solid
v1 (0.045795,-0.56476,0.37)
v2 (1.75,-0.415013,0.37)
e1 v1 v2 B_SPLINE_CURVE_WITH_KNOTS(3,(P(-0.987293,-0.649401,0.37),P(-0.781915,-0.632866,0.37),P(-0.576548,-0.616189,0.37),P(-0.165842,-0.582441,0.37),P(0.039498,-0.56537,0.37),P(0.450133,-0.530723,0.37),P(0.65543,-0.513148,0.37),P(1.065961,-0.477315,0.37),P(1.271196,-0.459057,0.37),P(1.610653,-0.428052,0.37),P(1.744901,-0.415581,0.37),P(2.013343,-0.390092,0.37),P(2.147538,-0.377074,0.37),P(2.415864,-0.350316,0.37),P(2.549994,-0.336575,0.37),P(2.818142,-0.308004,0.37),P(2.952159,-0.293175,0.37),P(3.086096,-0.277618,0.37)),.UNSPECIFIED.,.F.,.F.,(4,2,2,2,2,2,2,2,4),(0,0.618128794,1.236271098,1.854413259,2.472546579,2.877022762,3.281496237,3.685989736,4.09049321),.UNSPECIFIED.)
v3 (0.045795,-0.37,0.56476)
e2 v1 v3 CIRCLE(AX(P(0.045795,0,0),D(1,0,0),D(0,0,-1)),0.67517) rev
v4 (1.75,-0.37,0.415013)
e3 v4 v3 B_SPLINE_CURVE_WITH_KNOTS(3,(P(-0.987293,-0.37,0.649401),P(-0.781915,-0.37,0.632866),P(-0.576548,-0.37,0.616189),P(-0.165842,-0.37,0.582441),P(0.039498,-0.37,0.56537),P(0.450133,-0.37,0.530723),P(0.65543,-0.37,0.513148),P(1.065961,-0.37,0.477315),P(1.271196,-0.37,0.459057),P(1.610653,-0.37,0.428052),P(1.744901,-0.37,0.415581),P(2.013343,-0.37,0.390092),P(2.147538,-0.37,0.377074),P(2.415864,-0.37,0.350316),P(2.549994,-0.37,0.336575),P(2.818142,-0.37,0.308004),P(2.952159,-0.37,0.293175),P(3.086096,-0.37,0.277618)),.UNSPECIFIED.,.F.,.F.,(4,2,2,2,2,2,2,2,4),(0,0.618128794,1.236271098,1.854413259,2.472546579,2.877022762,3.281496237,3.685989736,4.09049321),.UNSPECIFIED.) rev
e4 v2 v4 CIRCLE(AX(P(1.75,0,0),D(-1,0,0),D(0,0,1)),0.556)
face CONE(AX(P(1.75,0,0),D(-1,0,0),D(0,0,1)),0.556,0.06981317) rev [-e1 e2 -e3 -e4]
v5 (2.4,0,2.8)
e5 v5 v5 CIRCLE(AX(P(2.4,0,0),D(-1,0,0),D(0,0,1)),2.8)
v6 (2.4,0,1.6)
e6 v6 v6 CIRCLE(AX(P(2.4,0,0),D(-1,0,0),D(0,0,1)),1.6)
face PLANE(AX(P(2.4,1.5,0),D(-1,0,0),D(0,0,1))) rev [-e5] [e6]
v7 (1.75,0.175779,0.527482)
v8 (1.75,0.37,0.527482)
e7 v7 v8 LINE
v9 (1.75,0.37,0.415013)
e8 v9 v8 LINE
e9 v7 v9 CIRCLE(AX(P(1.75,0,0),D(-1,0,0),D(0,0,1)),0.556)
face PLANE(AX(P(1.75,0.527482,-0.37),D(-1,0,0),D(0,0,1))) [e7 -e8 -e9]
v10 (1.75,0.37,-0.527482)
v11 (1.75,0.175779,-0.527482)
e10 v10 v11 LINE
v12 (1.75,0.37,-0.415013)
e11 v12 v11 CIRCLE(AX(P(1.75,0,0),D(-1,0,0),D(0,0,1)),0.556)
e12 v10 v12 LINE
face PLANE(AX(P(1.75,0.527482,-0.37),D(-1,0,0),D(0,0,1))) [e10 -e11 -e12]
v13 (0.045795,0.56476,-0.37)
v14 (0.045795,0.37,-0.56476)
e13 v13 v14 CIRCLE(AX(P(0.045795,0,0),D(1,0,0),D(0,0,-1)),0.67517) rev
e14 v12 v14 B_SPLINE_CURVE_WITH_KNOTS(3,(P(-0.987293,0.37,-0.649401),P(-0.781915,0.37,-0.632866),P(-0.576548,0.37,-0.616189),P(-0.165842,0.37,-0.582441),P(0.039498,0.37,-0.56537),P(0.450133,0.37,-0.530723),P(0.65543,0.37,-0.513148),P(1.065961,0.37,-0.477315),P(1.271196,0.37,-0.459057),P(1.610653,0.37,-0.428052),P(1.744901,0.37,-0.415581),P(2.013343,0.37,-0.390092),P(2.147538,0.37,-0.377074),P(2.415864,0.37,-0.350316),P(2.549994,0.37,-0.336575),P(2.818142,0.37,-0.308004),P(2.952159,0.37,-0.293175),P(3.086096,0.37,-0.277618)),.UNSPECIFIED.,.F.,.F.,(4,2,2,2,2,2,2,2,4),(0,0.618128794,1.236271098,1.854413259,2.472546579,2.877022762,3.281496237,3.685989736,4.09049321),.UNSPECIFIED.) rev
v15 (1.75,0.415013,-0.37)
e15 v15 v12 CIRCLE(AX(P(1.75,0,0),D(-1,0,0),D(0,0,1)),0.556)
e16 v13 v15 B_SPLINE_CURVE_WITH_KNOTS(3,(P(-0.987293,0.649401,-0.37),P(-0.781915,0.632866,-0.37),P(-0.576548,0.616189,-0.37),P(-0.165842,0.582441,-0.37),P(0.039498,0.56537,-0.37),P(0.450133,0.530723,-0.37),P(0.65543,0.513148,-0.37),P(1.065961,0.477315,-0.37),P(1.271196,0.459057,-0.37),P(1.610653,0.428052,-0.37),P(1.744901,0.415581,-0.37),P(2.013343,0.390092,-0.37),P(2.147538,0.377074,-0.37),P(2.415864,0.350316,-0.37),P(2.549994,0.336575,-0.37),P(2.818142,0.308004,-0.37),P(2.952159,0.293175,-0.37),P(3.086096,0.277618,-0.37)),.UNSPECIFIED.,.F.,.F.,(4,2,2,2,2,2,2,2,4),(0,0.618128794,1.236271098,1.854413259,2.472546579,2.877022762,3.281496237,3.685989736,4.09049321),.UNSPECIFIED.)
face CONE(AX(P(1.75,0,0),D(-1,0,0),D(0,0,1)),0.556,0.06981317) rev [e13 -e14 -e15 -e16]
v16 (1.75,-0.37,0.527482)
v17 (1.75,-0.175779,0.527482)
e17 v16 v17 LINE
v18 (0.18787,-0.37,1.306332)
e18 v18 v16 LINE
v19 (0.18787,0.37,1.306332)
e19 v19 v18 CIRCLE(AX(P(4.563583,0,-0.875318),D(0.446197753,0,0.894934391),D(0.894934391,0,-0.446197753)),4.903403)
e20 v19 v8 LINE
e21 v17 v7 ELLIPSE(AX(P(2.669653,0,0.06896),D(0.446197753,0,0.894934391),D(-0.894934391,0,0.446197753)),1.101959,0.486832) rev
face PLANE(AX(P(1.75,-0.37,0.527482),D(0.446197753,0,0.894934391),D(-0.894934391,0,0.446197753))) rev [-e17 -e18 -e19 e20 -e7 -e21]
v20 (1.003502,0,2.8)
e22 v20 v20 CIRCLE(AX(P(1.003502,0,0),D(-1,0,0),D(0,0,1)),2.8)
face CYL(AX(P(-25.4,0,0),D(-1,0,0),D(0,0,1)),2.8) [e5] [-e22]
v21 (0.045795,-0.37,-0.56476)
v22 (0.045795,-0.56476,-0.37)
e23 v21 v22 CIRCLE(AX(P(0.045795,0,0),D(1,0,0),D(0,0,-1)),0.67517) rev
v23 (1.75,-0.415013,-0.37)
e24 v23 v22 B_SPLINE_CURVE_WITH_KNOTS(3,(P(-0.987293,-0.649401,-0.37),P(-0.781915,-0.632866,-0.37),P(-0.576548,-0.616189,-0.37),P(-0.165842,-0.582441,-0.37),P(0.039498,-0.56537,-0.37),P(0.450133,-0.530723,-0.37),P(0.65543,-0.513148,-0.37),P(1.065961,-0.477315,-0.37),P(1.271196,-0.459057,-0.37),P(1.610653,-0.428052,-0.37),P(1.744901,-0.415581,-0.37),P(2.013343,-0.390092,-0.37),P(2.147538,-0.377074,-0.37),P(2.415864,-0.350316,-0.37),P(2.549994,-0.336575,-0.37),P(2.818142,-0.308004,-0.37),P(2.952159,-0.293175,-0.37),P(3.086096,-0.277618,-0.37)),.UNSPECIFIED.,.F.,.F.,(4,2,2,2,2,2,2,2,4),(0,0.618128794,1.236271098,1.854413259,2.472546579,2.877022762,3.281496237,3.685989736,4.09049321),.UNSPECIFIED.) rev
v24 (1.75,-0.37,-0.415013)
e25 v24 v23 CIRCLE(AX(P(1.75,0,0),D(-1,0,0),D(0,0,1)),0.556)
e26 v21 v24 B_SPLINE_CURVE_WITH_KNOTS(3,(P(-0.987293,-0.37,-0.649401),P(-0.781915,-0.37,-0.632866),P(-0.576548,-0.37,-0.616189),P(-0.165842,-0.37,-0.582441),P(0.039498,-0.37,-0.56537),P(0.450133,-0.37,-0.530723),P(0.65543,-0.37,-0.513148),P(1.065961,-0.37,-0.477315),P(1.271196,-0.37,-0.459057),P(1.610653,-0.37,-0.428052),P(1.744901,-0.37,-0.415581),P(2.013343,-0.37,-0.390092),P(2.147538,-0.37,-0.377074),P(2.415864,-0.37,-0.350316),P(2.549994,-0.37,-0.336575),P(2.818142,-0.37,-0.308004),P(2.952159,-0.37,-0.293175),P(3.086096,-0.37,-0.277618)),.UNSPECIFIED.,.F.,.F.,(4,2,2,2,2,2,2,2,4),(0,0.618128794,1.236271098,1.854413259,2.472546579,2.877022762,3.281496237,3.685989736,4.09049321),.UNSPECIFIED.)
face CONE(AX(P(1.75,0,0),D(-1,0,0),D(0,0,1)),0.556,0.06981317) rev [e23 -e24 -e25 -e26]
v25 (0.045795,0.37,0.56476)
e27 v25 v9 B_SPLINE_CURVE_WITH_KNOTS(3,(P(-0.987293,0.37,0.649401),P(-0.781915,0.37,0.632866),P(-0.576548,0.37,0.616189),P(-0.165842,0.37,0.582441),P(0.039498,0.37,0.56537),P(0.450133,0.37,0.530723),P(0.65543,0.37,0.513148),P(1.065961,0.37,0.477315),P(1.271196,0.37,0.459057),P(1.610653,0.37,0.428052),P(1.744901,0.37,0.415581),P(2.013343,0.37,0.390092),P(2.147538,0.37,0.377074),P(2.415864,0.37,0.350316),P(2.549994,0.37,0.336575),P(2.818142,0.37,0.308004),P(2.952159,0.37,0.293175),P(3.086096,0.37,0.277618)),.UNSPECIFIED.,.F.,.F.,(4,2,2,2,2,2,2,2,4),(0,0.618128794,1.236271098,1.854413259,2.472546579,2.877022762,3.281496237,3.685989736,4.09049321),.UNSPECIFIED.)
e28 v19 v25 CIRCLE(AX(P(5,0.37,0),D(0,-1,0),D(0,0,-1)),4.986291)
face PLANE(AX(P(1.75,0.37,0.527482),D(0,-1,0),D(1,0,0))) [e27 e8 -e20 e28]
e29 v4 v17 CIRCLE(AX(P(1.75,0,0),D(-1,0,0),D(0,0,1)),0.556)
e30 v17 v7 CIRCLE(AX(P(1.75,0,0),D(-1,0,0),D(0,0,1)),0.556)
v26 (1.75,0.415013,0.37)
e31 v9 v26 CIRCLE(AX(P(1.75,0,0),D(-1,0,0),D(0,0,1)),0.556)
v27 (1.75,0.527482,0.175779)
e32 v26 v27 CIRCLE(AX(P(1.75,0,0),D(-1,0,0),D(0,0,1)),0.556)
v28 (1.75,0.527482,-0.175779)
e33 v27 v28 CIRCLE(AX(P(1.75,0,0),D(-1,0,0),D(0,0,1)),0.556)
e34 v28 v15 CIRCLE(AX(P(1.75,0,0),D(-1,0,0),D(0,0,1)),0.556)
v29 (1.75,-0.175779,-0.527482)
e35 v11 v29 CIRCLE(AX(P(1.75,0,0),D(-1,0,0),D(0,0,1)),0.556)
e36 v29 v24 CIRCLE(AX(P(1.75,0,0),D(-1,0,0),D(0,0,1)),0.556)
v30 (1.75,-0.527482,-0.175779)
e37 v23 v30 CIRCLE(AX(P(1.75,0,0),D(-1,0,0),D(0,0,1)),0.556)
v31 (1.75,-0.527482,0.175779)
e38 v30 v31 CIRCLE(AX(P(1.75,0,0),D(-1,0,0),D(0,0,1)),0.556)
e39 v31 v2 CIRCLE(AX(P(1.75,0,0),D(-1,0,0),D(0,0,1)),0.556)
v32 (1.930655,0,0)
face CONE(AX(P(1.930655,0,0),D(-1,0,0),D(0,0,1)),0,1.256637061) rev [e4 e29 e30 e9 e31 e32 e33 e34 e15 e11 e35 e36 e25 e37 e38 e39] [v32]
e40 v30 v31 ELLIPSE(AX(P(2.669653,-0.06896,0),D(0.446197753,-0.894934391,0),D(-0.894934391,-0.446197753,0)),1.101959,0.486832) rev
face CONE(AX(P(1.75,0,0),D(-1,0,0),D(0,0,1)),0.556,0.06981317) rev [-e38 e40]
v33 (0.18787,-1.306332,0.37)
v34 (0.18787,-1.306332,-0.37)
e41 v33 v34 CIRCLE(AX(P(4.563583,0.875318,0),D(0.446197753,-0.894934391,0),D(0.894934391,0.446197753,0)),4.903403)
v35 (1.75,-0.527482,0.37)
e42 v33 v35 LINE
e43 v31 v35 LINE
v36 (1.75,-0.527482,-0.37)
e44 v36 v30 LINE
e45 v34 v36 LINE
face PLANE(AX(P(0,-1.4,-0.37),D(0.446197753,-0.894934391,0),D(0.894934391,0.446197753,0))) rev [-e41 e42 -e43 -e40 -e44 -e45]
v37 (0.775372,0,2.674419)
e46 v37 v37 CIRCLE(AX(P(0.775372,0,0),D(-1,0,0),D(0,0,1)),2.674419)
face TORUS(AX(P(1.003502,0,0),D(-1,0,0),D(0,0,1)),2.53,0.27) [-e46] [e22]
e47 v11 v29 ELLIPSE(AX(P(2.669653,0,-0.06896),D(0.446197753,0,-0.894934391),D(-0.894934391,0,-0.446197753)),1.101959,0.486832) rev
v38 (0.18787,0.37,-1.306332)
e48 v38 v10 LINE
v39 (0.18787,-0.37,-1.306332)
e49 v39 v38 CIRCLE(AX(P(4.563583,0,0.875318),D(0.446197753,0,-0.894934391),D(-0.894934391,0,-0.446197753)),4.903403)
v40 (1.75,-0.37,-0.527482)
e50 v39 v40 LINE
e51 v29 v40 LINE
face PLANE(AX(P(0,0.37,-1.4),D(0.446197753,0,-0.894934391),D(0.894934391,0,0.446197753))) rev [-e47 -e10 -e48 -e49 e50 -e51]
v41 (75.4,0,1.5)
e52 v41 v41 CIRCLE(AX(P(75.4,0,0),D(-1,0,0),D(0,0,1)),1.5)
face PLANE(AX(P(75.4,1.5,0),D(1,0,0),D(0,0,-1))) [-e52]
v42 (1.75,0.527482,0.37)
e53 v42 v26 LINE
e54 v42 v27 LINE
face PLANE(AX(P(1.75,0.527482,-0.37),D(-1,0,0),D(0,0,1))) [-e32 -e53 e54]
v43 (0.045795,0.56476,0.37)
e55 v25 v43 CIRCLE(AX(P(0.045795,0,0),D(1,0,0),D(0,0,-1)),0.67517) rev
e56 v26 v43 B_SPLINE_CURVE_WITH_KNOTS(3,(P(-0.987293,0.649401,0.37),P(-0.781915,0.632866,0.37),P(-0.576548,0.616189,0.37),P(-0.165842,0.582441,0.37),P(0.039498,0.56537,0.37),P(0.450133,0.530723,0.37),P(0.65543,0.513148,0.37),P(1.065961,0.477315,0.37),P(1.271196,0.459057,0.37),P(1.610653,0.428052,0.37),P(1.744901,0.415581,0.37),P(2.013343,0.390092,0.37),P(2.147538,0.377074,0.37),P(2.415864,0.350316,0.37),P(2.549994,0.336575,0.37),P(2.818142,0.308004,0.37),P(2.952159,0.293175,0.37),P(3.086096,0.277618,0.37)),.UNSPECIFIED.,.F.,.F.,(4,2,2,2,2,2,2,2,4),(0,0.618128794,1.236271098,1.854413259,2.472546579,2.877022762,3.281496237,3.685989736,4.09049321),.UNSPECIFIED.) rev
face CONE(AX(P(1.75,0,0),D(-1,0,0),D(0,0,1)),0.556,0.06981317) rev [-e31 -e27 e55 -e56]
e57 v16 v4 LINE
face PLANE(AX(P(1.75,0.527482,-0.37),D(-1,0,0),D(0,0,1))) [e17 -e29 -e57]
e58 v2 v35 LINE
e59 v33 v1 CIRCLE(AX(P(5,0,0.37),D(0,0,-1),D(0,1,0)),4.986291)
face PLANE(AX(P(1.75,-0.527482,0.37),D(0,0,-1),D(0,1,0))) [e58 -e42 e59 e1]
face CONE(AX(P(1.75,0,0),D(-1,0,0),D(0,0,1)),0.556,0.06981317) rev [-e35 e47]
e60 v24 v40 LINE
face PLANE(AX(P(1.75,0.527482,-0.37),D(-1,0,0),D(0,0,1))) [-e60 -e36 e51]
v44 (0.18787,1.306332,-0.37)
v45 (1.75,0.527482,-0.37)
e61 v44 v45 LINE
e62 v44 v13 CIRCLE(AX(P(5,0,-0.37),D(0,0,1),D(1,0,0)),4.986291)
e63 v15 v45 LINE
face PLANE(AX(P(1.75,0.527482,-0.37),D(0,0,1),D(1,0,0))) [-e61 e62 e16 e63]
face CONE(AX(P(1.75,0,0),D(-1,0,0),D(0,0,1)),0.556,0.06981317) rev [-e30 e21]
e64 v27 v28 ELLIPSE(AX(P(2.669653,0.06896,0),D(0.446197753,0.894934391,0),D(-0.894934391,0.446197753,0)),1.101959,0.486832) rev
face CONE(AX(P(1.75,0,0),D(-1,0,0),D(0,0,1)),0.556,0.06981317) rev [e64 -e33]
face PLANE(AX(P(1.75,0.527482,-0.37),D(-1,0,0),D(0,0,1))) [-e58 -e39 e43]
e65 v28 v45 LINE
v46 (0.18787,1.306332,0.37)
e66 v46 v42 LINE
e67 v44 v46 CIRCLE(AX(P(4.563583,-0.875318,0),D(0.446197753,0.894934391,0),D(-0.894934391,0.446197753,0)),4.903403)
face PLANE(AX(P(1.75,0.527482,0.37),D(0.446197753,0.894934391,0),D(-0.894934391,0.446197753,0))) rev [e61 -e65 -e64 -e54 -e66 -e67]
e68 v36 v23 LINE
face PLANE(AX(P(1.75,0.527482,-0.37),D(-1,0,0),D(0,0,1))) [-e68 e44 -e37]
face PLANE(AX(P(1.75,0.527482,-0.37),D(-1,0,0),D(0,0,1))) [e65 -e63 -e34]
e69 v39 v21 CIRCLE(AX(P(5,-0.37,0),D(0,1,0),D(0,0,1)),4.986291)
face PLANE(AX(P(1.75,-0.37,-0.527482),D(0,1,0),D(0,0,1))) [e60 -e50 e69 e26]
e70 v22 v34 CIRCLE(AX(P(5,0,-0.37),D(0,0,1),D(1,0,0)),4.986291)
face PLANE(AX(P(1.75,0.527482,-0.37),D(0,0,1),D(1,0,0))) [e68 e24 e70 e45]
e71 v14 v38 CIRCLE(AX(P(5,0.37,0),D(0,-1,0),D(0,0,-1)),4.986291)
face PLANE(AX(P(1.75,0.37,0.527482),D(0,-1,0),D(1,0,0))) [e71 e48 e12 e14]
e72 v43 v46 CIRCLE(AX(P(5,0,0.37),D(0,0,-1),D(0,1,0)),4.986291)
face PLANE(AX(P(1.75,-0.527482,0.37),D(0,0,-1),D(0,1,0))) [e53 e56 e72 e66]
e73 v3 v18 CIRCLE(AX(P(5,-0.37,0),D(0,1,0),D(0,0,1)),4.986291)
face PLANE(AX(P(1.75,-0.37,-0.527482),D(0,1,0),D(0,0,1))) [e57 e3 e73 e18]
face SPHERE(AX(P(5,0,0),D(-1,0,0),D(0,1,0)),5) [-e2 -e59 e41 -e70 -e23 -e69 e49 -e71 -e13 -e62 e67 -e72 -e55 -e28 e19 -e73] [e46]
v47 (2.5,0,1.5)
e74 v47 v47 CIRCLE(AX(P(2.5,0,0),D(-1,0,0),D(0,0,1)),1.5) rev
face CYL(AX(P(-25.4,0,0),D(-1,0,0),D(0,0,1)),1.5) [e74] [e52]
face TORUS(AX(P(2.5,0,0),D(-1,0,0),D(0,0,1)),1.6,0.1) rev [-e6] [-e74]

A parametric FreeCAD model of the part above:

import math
import FreeCAD as App
import Part
import Sketcher
Q = App.Units.Quantity


def edges_at(feature, points):
    """Names of the edges that pass closest to the given points."""
    edges = feature.Shape.Edges
    near = lambda p: min(range(len(edges)), key=lambda i: edges[i].distToShape(Part.Vertex(*p))[0])
    return sorted({f"Edge{near(p) + 1}" for p in points})


def add_polygon(sketch, points):
    """Adds a closed chain of lines whose ends are joined by coincident constraints."""
    first, n = sketch.GeometryCount, len(points)
    for a, b in zip(points, points[1:] + points[:1]):
        sketch.addGeometry(Part.LineSegment(App.Vector(*a, 0), App.Vector(*b, 0)), False)
    for i in range(n):
        sketch.addConstraint(Sketcher.Constraint("Coincident", first + i, 2, first + (i + 1) % n, 1))

doc = App.newDocument("Part")
body = doc.addObject("PartDesign::Body", "Body")

# Sketch on XY plane
sketch1 = body.newObject("Sketcher::SketchObject", "Sketch")
sketch1.AttachmentSupport = (doc.getObject("XY_Plane"), [""])
sketch1.MapMode = "FlatFace"
sketch1.addGeometry([
    Part.LineSegment(App.Vector(2.4, 1.5, 0), App.Vector(2.4, 2.8, 0)),  # 0
    Part.LineSegment(App.Vector(2.4, 2.8, 0), App.Vector(1, 2.8, 0)),  # 1
    Part.ArcOfCircle(Part.Circle(App.Vector(1, 2.53, 0), App.Vector(0, 0, 1), 0.27), math.radians(90), math.radians(148)),  # 2
    Part.ArcOfCircle(Part.Circle(App.Vector(5, 0, 0), App.Vector(0, 0, 1), 5), math.radians(148), math.radians(180)),  # 3
    Part.LineSegment(App.Vector(0, 0, 0), App.Vector(75.4, 0, 0)),  # 4
    Part.LineSegment(App.Vector(75.4, 0, 0), App.Vector(75.4, 1.5, 0)),  # 5
    Part.LineSegment(App.Vector(75.4, 1.5, 0), App.Vector(2.4, 1.5, 0)),  # 6
], False)
sketch1.addConstraint([
    Sketcher.Constraint("Coincident", 0, 2, 1, 1),
    Sketcher.Constraint("Tangent", 1, 2, 2, 1),
    Sketcher.Constraint("Tangent", 2, 2, 3, 1),
    Sketcher.Constraint("Coincident", 3, 2, 4, 1),
    Sketcher.Constraint("Coincident", 4, 2, 5, 1),
    Sketcher.Constraint("Coincident", 5, 2, 6, 1),
    Sketcher.Constraint("Coincident", 6, 2, 0, 1),
    Sketcher.Constraint("Vertical", 0),
    Sketcher.Constraint("Horizontal", 1),
    Sketcher.Constraint("Horizontal", 4),
    Sketcher.Constraint("Vertical", 5),
    Sketcher.Constraint("Horizontal", 6),
    Sketcher.Constraint("Coincident", 3, 2, -1, 1),
    Sketcher.Constraint("PointOnObject", 3, 3, -1),
    Sketcher.Constraint("Radius", 3, 5.0),
    Sketcher.Constraint("DistanceX", 6, 2, 6, 1, 73.0),
    Sketcher.Constraint("Radius", 2, 0.27),
    Sketcher.Constraint("DistanceX", 4, 1, 4, 2, 75.4),
    Sketcher.Constraint("DistanceY", 0, 1, 0, 2, 1.3),
    Sketcher.Constraint("DistanceY", 5, 1, 5, 2, 1.5),
])
revolution = body.newObject("PartDesign::Revolution", "Revolution")
revolution.Profile = sketch1
revolution.ReferenceAxis = (sketch1, ["H_Axis"])
revolution.Angle = 360
doc.recompute()

fillet = body.newObject("PartDesign::Fillet", "Fillet")
fillet.Base = (revolution, edges_at(revolution, [(2.4, 0, -1.5)]))
fillet.Radius = 0.1

# Sketch on YZ plane
sketch2 = body.newObject("Sketcher::SketchObject", "Sketch001")
sketch2.AttachmentSupport = (doc.getObject("YZ_Plane"), [""])
sketch2.MapMode = "FlatFace"
add_polygon(sketch2, [(-1.4, 0.4), (-1.4, -0.4), (1.4, -0.4), (1.4, 0.4)])  # lines 0-3
sketch2.addConstraint([
    Sketcher.Constraint("Vertical", 0),
    Sketcher.Constraint("Horizontal", 1),
    Sketcher.Constraint("Vertical", 2),
    Sketcher.Constraint("Horizontal", 3),
    Sketcher.Constraint("Symmetric", 0, 2, 2, 2, -1, 1),
    Sketcher.Constraint("DistanceX", 1, 1, 1, 2, 2.8),
    Sketcher.Constraint("DistanceY", 0, 2, 0, 1, 0.74),
])

# Sketch on YZ plane
sketch3 = body.newObject("Sketcher::SketchObject", "Sketch002")
sketch3.AttachmentSupport = (doc.getObject("YZ_Plane"), [""])
sketch3.MapMode = "FlatFace"
sketch3.AttachmentOffset = App.Placement(App.Vector(0, 0, 1.75), App.Rotation())
add_polygon(sketch3, [(-0.5, 0.4), (-0.5, -0.4), (0.5, -0.4), (0.5, 0.4)])  # lines 0-3
sketch3.addConstraint([
    Sketcher.Constraint("Vertical", 0),
    Sketcher.Constraint("Horizontal", 1),
    Sketcher.Constraint("Vertical", 2),
    Sketcher.Constraint("Horizontal", 3),
    Sketcher.Constraint("Symmetric", 0, 2, 2, 2, -1, 1),
    Sketcher.Constraint("DistanceY", 0, 2, 0, 1, 0.74),
    Sketcher.Constraint("DistanceX", 1, 1, 1, 2, 1.054965),
])

subtractiveloft = body.newObject("PartDesign::SubtractiveLoft", "SubtractiveLoft")
subtractiveloft.Profile = sketch2
subtractiveloft.Sections = [sketch3]
doc.recompute()

polarpattern = body.newObject("PartDesign::PolarPattern", "PolarPattern")
polarpattern.Originals = [subtractiveloft]
polarpattern.Axis = (doc.getObject("X_Axis"), [""])
polarpattern.Angle = 90
polarpattern.Occurrences = 2
body.Tip = polarpattern

# Sketch on XY plane
sketch4 = body.newObject("Sketcher::SketchObject", "Sketch003")
sketch4.AttachmentSupport = (doc.getObject("XY_Plane"), [""])
sketch4.MapMode = "FlatFace"
add_polygon(sketch4, [(0, 0.7), (0, 0), (1.9, 0), (1.8, 0.6)])  # lines 0-3
sketch4.addConstraint([
    Sketcher.Constraint("Vertical", 0),
    Sketcher.Constraint("Horizontal", 1),
    Sketcher.Constraint("Coincident", 0, 2, -1, 1),
    Sketcher.Constraint("Angle", 2, Q("108 deg")),
    Sketcher.Constraint("Angle", 3, Q("176 deg")),
    Sketcher.Constraint("DistanceX", -1, 1, 2, 2, 1.75),
    Sketcher.Constraint("DistanceY", -1, 1, 2, 2, 0.556),
])
groove = body.newObject("PartDesign::Groove", "Groove")
groove.Profile = sketch4
groove.ReferenceAxis = (sketch4, ["H_Axis"])
groove.Angle = 360

doc.recompute()
